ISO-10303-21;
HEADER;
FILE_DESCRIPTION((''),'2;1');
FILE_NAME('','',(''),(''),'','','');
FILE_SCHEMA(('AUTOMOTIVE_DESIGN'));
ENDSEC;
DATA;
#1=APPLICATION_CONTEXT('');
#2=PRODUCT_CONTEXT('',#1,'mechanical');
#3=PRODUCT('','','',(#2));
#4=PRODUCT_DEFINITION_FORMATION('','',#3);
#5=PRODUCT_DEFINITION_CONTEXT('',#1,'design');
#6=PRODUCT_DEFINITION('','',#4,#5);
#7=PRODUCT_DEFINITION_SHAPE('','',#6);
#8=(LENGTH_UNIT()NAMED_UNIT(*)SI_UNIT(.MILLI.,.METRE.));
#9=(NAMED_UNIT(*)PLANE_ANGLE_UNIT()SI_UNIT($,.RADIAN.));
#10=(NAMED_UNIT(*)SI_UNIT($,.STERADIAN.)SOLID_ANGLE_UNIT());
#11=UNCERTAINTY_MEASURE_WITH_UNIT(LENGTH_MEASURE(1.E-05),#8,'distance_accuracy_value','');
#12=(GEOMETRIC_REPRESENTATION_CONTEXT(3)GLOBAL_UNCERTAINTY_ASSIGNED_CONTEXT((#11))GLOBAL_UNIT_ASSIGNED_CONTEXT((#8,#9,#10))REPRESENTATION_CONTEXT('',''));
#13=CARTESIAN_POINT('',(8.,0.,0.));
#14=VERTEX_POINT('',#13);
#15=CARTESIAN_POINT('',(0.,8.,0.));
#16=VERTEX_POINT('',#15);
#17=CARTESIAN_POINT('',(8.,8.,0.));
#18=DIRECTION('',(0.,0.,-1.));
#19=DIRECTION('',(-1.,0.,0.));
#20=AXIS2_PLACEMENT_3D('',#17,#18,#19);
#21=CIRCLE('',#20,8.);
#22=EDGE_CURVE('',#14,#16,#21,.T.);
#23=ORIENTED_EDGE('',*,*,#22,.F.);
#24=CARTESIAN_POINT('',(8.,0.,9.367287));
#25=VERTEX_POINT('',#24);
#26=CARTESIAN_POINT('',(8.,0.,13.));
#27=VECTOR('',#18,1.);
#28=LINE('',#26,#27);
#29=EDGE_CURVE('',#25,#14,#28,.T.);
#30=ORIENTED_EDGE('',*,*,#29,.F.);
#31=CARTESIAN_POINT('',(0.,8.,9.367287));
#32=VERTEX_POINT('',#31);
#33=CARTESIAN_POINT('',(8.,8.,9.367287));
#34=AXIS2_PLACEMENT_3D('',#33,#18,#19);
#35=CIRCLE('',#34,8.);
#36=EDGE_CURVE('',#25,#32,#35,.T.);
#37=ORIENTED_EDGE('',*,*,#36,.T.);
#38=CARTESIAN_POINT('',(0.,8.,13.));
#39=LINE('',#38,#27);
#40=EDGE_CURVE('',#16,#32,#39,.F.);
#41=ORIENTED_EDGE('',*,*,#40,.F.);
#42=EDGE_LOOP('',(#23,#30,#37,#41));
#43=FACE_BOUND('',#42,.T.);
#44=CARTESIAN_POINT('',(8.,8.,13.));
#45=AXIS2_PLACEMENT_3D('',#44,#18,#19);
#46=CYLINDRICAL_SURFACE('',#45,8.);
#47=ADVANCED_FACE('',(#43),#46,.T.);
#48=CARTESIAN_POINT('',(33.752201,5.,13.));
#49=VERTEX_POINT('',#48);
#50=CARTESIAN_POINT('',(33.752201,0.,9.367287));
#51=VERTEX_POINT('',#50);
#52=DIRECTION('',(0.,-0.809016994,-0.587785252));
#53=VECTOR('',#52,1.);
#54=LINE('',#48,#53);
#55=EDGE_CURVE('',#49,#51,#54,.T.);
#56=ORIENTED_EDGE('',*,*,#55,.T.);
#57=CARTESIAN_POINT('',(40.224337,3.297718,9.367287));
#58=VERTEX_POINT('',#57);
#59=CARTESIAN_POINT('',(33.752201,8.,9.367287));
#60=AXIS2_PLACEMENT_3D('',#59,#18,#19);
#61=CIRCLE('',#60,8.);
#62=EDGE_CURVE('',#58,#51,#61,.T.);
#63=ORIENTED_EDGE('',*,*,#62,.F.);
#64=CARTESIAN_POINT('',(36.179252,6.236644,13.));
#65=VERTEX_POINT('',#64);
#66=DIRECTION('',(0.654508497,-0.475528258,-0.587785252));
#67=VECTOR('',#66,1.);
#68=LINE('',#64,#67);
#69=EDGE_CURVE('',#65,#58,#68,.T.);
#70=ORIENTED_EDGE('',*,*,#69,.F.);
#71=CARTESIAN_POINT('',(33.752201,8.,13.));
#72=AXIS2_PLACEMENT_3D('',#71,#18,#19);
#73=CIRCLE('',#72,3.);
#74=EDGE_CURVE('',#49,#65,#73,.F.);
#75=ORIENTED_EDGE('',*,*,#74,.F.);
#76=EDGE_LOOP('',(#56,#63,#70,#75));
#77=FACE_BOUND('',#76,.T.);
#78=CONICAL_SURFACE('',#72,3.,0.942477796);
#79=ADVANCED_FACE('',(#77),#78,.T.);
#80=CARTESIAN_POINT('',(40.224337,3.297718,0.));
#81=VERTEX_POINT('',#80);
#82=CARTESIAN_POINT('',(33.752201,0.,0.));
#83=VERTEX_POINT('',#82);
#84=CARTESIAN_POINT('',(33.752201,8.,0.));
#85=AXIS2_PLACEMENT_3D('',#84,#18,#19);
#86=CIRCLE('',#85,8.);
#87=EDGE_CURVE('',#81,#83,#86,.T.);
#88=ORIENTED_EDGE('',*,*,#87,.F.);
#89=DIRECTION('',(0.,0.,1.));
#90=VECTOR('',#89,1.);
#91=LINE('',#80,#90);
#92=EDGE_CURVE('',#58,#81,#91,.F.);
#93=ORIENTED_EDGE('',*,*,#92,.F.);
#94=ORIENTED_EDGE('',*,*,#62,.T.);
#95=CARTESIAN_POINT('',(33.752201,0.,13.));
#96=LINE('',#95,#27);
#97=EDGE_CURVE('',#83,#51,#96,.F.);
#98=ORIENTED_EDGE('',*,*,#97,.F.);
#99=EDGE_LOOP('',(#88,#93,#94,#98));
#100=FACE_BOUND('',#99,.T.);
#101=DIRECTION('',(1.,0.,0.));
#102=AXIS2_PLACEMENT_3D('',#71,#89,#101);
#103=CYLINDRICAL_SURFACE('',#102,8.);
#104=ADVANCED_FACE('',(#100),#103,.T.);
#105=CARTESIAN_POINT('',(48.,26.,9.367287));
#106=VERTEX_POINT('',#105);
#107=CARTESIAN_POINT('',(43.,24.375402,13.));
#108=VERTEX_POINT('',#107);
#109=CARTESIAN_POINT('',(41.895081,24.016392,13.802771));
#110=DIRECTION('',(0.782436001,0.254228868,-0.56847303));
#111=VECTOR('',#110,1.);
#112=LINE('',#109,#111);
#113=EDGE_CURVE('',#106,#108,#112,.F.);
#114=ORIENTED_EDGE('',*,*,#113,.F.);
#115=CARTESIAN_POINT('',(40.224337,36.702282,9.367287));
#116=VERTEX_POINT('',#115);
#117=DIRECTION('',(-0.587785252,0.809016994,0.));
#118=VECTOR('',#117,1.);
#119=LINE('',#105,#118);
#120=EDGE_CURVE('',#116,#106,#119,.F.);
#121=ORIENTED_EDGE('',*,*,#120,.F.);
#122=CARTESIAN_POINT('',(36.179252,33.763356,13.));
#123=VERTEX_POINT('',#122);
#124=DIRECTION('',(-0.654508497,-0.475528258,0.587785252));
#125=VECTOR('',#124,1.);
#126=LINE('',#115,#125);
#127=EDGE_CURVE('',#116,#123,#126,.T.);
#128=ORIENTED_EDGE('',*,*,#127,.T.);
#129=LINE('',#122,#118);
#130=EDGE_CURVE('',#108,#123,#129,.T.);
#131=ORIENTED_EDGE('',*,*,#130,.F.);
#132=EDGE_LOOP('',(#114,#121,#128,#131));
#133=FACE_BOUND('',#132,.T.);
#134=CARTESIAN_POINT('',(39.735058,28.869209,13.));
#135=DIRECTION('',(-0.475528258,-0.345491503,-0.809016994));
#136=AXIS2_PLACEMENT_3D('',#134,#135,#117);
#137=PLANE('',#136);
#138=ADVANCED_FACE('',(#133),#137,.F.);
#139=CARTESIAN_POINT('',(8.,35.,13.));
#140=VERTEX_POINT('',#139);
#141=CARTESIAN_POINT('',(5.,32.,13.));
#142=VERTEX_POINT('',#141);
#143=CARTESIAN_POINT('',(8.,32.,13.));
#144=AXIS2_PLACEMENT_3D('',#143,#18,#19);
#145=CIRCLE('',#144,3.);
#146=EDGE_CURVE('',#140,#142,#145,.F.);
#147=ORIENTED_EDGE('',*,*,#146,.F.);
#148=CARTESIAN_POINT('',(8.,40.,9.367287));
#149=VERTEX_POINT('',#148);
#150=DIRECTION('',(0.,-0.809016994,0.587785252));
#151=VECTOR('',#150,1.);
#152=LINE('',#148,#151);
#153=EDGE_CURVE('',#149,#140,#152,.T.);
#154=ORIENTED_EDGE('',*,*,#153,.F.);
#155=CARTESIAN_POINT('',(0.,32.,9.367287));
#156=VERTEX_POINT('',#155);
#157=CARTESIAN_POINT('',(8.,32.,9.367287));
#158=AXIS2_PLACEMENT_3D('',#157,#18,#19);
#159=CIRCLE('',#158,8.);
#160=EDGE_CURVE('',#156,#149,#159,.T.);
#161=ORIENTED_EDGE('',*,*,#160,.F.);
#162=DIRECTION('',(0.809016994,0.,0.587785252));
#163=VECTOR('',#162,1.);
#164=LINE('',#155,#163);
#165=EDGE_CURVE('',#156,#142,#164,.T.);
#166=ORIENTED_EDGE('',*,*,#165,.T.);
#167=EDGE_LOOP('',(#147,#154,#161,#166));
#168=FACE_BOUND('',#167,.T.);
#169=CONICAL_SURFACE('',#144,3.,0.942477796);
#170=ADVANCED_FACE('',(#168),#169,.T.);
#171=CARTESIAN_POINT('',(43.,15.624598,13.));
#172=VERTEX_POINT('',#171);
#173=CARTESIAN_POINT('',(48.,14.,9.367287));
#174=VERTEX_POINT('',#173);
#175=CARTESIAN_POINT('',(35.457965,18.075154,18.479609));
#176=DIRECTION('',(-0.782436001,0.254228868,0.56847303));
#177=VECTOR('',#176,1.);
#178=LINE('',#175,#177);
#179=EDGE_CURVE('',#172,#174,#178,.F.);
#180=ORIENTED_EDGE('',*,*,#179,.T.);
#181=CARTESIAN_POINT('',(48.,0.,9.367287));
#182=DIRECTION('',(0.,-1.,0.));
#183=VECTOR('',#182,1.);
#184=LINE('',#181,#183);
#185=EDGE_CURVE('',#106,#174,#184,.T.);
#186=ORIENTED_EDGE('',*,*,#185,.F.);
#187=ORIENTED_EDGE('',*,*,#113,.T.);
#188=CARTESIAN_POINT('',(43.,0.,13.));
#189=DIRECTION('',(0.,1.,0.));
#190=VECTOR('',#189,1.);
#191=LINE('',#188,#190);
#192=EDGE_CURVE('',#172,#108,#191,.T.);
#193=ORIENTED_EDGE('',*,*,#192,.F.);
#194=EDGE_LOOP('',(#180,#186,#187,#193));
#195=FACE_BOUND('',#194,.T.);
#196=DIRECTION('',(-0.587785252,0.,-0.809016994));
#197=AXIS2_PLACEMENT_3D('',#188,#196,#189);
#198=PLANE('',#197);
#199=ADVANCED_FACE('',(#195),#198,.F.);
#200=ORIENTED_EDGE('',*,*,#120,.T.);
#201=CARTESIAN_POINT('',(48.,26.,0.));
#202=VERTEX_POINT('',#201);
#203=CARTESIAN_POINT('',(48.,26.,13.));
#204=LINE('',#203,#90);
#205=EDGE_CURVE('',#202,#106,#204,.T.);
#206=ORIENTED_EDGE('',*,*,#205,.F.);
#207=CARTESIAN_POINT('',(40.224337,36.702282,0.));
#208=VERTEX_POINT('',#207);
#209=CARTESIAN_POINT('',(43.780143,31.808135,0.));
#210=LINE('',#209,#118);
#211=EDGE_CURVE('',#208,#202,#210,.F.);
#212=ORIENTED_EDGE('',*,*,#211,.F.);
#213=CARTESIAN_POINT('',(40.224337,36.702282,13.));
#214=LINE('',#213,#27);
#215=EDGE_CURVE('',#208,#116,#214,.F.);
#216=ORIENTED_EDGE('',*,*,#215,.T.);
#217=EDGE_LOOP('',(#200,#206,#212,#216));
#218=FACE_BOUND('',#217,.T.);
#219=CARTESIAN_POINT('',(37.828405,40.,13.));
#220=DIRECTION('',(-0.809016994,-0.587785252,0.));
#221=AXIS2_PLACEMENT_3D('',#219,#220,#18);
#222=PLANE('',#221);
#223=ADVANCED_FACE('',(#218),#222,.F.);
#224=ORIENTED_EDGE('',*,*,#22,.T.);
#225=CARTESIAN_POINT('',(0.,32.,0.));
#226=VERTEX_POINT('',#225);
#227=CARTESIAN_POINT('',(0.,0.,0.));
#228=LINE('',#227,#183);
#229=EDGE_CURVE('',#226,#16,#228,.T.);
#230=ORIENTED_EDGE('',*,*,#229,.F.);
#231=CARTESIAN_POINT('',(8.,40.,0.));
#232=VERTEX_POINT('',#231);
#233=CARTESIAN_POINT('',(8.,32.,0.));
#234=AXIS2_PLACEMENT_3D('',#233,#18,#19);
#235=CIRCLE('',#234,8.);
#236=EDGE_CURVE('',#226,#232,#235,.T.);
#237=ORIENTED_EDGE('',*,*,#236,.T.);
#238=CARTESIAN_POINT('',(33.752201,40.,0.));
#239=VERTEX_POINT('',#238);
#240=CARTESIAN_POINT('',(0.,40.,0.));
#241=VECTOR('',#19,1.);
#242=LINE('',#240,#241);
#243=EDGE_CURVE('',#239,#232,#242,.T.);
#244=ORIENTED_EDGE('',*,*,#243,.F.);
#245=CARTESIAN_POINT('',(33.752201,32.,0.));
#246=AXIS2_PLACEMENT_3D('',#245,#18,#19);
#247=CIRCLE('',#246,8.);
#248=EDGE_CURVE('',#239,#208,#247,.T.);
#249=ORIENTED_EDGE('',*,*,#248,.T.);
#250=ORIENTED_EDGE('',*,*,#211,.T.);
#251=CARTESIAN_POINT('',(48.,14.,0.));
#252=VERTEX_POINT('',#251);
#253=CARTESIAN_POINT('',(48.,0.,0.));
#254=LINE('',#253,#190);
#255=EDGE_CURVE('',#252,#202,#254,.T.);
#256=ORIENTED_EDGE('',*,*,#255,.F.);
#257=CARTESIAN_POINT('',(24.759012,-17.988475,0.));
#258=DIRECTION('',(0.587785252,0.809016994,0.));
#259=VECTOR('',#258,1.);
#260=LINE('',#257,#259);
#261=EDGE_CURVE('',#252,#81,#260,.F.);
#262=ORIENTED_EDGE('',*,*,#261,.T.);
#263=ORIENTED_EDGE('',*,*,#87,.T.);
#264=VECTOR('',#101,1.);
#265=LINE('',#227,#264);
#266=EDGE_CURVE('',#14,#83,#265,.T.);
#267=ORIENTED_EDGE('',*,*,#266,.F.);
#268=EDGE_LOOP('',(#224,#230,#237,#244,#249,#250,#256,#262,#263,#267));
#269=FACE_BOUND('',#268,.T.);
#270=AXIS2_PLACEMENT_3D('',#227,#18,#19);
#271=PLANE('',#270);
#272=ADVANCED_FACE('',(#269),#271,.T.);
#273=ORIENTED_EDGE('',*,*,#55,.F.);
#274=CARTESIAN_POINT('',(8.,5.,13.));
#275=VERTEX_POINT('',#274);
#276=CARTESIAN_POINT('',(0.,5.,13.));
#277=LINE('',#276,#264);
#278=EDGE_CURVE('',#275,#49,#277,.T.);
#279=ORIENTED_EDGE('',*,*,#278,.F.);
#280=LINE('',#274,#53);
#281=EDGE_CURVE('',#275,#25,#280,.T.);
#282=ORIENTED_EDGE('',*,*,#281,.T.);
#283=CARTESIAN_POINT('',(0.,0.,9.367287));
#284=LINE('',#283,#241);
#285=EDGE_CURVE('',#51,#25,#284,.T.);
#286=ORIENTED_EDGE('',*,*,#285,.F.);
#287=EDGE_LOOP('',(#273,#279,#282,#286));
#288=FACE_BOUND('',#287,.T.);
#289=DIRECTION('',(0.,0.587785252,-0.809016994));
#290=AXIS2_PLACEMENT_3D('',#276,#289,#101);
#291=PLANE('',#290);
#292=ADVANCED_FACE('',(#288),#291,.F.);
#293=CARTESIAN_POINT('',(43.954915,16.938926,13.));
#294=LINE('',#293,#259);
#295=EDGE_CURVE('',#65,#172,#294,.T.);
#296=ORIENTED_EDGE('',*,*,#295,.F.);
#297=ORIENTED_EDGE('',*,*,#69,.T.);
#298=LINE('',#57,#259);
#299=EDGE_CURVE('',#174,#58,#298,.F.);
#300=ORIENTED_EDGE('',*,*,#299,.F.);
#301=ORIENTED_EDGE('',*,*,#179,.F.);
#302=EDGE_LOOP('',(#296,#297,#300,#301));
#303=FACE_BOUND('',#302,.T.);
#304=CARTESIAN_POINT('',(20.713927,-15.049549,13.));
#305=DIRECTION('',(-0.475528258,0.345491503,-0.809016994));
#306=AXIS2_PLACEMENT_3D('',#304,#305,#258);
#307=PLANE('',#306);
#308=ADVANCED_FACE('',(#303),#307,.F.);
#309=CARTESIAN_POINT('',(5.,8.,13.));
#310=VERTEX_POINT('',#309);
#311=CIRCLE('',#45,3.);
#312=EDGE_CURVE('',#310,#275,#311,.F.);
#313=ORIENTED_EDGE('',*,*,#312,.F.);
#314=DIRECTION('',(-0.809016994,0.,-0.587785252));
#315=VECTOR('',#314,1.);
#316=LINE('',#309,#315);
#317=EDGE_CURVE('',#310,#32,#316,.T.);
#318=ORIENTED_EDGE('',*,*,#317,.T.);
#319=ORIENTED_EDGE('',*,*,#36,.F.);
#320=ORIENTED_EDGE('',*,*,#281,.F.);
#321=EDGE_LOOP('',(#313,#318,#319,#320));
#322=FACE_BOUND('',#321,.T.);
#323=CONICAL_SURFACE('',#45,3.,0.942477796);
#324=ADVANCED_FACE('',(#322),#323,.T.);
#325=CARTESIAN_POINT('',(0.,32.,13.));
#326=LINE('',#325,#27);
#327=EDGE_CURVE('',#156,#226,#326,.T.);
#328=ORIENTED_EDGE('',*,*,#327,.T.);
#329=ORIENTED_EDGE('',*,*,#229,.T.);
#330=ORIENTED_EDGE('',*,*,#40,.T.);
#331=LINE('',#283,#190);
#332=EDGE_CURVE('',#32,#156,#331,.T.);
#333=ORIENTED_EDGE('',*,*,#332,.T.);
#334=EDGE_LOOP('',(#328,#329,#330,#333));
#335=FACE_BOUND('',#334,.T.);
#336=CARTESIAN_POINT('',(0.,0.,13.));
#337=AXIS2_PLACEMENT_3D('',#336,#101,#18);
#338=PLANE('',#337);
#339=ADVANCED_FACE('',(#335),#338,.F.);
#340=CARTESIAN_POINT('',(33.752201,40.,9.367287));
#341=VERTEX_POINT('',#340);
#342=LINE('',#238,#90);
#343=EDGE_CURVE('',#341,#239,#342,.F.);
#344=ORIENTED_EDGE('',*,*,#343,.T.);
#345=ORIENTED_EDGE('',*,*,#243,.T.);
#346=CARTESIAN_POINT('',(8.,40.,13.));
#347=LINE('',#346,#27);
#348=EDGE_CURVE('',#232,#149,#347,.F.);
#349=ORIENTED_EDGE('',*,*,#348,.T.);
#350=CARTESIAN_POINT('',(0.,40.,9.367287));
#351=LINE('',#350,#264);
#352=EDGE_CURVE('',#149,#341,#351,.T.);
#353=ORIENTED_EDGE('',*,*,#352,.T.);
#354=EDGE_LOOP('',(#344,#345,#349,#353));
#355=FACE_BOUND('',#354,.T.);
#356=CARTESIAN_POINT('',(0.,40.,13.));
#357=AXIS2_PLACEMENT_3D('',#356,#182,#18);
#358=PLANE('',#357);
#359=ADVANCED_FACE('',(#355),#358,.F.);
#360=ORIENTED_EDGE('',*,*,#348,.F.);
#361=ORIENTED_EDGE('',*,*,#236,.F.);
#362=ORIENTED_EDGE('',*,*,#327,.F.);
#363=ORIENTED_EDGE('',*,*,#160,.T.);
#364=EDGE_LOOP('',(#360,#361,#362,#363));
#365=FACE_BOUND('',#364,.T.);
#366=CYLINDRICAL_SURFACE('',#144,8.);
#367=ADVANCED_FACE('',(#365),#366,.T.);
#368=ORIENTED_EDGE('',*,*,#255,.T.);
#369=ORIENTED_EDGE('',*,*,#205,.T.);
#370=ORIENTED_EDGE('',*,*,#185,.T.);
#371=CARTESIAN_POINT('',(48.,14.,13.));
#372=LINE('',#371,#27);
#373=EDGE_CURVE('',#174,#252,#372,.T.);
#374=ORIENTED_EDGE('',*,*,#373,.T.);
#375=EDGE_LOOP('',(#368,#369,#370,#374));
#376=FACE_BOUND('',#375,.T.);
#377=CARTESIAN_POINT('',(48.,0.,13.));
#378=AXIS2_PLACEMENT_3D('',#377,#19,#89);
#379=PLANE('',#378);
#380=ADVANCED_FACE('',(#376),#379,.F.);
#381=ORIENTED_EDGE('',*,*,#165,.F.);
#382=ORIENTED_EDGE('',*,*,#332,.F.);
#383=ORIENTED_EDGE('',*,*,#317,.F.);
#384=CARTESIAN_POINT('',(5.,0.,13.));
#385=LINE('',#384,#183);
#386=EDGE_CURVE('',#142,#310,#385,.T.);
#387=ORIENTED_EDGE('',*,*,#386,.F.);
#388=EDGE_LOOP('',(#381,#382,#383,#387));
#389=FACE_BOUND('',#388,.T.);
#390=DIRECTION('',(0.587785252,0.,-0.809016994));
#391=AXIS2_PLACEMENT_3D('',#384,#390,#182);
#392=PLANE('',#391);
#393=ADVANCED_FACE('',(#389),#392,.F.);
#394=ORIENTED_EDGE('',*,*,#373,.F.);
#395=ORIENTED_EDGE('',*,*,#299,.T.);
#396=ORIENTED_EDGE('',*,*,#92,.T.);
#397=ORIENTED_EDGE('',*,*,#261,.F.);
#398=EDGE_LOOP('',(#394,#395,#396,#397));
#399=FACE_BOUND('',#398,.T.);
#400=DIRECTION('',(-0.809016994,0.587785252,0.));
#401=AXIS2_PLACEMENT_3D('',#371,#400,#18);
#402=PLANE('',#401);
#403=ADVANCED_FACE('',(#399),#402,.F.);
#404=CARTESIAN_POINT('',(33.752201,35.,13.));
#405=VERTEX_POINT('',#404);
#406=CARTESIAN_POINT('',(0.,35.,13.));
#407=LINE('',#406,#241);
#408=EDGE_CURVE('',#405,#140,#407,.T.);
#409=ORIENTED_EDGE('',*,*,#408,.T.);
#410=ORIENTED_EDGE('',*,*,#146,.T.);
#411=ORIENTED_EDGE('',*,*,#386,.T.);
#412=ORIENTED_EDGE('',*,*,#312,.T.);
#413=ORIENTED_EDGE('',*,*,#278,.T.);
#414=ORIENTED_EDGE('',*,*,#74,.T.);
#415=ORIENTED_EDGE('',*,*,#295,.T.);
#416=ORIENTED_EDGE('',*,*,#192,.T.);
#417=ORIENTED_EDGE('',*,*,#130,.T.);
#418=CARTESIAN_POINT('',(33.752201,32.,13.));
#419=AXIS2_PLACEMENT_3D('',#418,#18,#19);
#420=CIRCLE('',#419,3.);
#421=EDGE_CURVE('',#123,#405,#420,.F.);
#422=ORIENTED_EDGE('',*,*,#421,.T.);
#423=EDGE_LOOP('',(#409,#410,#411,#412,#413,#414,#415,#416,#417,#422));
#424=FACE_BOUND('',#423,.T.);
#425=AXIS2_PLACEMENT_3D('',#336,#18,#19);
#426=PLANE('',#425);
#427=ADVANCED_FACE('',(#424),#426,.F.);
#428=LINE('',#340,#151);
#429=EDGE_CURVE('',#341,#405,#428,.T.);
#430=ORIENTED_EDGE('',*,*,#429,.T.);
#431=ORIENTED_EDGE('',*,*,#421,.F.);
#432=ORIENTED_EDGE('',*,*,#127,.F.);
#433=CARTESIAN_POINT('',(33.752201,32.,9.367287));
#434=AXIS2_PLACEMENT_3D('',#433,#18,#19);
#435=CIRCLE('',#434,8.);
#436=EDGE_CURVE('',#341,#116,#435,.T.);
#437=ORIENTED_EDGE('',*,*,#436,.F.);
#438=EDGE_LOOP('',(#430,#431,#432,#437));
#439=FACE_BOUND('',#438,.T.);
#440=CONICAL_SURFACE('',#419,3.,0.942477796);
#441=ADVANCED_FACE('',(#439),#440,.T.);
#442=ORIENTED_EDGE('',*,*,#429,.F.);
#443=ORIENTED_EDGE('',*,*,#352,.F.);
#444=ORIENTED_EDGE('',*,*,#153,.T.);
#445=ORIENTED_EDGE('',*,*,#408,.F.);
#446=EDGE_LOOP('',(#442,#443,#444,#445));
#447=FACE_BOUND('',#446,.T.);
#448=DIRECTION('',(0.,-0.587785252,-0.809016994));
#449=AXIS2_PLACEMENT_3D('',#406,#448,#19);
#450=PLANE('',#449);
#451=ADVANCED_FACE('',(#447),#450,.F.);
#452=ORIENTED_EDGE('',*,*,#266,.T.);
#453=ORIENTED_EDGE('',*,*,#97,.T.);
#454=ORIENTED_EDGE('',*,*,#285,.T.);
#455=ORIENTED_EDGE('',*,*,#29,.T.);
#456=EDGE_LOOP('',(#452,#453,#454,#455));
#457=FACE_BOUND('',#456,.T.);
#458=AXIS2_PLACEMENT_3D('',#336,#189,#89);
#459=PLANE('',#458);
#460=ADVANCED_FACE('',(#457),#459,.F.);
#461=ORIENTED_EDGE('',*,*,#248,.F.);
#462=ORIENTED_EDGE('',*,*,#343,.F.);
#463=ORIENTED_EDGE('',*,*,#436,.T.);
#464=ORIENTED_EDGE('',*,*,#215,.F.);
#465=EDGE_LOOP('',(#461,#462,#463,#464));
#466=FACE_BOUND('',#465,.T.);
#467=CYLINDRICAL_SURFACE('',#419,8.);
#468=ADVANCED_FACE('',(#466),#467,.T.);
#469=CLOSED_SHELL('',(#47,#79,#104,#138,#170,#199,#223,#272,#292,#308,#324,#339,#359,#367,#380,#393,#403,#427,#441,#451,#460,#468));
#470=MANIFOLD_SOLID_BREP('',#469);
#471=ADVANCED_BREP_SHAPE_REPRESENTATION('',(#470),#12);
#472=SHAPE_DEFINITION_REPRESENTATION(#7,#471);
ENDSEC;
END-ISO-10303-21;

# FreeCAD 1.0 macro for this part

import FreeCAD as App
import Part
import Sketcher

V = App.Vector


def edges_at(feature, points):
    """Names of the edges that pass closest to the given points."""
    edges = feature.Shape.Edges
    near = lambda p: min(range(len(edges)), key=lambda i: edges[i].distToShape(Part.Vertex(*p))[0])
    return sorted({f"Edge{near(p) + 1}" for p in points})

doc = App.newDocument("Part")
body = doc.addObject("PartDesign::Body", "Body")

# Sketch on XY plane
sketch1 = body.newObject("Sketcher::SketchObject", "Sketch")
sketch1.AttachmentSupport = (doc.getObject("XY_Plane"), [""])
sketch1.MapMode = "FlatFace"
sketch1.addGeometry([
    Part.LineSegment(V(0, 40, 0), V(0, 0, 0)),
    Part.LineSegment(V(0, 0, 0), V(48, 0, 0)),
    Part.LineSegment(V(48, 0, 0), V(48, 40, 0)),
    Part.LineSegment(V(48, 40, 0), V(0, 40, 0)),
], False)
sketch1.addConstraint([
    Sketcher.Constraint("Coincident", 0, 2, 1, 1),
    Sketcher.Constraint("Coincident", 1, 2, 2, 1),
    Sketcher.Constraint("Coincident", 2, 2, 3, 1),
    Sketcher.Constraint("Coincident", 3, 2, 0, 1),
    Sketcher.Constraint("Vertical", 0),
    Sketcher.Constraint("Horizontal", 1),
    Sketcher.Constraint("Vertical", 2),
    Sketcher.Constraint("Horizontal", 3),
    Sketcher.Constraint("Coincident", 0, 2, -1, 1),
    Sketcher.Constraint("DistanceX", 1, 1, 1, 2, 48.0),
    Sketcher.Constraint("DistanceY", 0, 2, 0, 1, 40.0),
])
pad1 = body.newObject("PartDesign::Pad", "Pad")
pad1.Profile = sketch1
pad1.Length = 13
doc.recompute()

fillet = body.newObject("PartDesign::Fillet", "Fillet")
fillet.Base = (pad1, edges_at(pad1, [(0, 40, 6.5), (0, 0, 6.5)]))
fillet.Radius = 8
doc.recompute()

chamfer = body.newObject("PartDesign::Chamfer", "Chamfer")
chamfer.Base = (fillet, edges_at(fillet, [(48, 40, 6.5), (48, 0, 6.5)]))
chamfer.ChamferType = "Two distances"
chamfer.Size = 14
chamfer.Size2 = 10.171595
chamfer.FlipDirection = True
doc.recompute()

fillet2 = body.newObject("PartDesign::Fillet", "Fillet001")
fillet2.Base = (chamfer, edges_at(chamfer, [(37.828, 0, 6.5), (37.828, 40, 6.5)]))
fillet2.Radius = 8
doc.recompute()

chamfer2 = body.newObject("PartDesign::Chamfer", "Chamfer001")
chamfer2.Base = (fillet2, edges_at(fillet2, [
    (20.876, 0, 13),
    (0, 20, 13),
    (2.343, 37.657, 13),
    (2.343, 2.343, 13),
    (48, 20, 13),
    (44.112, 31.351, 13),
    (20.876, 40, 13),
    (44.112, 8.649, 13),
    (37.384, 0.872, 13),
    (37.384, 39.128, 13),
]))
chamfer2.ChamferType = "Two distances"
chamfer2.Size = 5
chamfer2.Size2 = 3.632713
chamfer2.FlipDirection = True

doc.recompute()
